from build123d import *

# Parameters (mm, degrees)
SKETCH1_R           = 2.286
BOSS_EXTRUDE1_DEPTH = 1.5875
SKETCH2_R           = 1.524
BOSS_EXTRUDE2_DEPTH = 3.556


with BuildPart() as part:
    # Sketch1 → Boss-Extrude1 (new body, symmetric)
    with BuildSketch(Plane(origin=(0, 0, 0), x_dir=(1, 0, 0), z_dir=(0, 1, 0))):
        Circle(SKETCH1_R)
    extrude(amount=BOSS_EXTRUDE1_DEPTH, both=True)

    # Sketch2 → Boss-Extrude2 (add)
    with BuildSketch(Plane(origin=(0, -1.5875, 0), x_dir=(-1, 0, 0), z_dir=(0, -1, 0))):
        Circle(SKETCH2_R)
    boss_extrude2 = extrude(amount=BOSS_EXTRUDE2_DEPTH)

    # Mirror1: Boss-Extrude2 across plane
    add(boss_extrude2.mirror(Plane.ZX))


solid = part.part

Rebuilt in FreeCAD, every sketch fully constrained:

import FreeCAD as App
import Part
import Sketcher
Q = App.Units.Quantity

doc = App.newDocument("Part")
body = doc.addObject("PartDesign::Body", "Body")

sketch1 = body.newObject("Sketcher::SketchObject", "Sketch")
sketch1.AttachmentSupport = (doc.getObject("XZ_Plane"), [""])
sketch1.MapMode = "FlatFace"
sketch1.addGeometry(Part.Circle(App.Vector(0, 0, 0), App.Vector(0, 0, 1), 2.286), False)
sketch1.addConstraint([
    Sketcher.Constraint("Coincident", 0, 3, -1, 1),
    Sketcher.Constraint("Diameter", 0, Q("0.18 in")),
])
pad1 = body.newObject("PartDesign::Pad", "Pad")
pad1.Profile = sketch1
pad1.Length = Q("0.125 in")
pad1.Midplane = True

sketch2 = body.newObject("Sketcher::SketchObject", "Sketch001")
sketch2.AttachmentSupport = (doc.getObject("XZ_Plane"), [""])
sketch2.MapMode = "FlatFace"
sketch2.AttachmentOffset = App.Placement(App.Vector(0, 0, 0.0625 * 25.4), App.Rotation())
sketch2.addGeometry(Part.Circle(App.Vector(0, 0, 0), App.Vector(0, 0, 1), 1.524), False)
sketch2.addConstraint([
    Sketcher.Constraint("Coincident", 0, 3, -1, 1),
    Sketcher.Constraint("Diameter", 0, Q("0.12 in")),
])
pad2 = body.newObject("PartDesign::Pad", "Pad001")
pad2.Profile = sketch2
pad2.Length = Q("0.14 in")
doc.recompute()

mirrored = body.newObject("PartDesign::Mirrored", "Mirrored")
mirrored.Originals = [pad2]
mirrored.MirrorPlane = (doc.getObject("XZ_Plane"), [""])
body.Tip = mirrored

doc.recompute()
